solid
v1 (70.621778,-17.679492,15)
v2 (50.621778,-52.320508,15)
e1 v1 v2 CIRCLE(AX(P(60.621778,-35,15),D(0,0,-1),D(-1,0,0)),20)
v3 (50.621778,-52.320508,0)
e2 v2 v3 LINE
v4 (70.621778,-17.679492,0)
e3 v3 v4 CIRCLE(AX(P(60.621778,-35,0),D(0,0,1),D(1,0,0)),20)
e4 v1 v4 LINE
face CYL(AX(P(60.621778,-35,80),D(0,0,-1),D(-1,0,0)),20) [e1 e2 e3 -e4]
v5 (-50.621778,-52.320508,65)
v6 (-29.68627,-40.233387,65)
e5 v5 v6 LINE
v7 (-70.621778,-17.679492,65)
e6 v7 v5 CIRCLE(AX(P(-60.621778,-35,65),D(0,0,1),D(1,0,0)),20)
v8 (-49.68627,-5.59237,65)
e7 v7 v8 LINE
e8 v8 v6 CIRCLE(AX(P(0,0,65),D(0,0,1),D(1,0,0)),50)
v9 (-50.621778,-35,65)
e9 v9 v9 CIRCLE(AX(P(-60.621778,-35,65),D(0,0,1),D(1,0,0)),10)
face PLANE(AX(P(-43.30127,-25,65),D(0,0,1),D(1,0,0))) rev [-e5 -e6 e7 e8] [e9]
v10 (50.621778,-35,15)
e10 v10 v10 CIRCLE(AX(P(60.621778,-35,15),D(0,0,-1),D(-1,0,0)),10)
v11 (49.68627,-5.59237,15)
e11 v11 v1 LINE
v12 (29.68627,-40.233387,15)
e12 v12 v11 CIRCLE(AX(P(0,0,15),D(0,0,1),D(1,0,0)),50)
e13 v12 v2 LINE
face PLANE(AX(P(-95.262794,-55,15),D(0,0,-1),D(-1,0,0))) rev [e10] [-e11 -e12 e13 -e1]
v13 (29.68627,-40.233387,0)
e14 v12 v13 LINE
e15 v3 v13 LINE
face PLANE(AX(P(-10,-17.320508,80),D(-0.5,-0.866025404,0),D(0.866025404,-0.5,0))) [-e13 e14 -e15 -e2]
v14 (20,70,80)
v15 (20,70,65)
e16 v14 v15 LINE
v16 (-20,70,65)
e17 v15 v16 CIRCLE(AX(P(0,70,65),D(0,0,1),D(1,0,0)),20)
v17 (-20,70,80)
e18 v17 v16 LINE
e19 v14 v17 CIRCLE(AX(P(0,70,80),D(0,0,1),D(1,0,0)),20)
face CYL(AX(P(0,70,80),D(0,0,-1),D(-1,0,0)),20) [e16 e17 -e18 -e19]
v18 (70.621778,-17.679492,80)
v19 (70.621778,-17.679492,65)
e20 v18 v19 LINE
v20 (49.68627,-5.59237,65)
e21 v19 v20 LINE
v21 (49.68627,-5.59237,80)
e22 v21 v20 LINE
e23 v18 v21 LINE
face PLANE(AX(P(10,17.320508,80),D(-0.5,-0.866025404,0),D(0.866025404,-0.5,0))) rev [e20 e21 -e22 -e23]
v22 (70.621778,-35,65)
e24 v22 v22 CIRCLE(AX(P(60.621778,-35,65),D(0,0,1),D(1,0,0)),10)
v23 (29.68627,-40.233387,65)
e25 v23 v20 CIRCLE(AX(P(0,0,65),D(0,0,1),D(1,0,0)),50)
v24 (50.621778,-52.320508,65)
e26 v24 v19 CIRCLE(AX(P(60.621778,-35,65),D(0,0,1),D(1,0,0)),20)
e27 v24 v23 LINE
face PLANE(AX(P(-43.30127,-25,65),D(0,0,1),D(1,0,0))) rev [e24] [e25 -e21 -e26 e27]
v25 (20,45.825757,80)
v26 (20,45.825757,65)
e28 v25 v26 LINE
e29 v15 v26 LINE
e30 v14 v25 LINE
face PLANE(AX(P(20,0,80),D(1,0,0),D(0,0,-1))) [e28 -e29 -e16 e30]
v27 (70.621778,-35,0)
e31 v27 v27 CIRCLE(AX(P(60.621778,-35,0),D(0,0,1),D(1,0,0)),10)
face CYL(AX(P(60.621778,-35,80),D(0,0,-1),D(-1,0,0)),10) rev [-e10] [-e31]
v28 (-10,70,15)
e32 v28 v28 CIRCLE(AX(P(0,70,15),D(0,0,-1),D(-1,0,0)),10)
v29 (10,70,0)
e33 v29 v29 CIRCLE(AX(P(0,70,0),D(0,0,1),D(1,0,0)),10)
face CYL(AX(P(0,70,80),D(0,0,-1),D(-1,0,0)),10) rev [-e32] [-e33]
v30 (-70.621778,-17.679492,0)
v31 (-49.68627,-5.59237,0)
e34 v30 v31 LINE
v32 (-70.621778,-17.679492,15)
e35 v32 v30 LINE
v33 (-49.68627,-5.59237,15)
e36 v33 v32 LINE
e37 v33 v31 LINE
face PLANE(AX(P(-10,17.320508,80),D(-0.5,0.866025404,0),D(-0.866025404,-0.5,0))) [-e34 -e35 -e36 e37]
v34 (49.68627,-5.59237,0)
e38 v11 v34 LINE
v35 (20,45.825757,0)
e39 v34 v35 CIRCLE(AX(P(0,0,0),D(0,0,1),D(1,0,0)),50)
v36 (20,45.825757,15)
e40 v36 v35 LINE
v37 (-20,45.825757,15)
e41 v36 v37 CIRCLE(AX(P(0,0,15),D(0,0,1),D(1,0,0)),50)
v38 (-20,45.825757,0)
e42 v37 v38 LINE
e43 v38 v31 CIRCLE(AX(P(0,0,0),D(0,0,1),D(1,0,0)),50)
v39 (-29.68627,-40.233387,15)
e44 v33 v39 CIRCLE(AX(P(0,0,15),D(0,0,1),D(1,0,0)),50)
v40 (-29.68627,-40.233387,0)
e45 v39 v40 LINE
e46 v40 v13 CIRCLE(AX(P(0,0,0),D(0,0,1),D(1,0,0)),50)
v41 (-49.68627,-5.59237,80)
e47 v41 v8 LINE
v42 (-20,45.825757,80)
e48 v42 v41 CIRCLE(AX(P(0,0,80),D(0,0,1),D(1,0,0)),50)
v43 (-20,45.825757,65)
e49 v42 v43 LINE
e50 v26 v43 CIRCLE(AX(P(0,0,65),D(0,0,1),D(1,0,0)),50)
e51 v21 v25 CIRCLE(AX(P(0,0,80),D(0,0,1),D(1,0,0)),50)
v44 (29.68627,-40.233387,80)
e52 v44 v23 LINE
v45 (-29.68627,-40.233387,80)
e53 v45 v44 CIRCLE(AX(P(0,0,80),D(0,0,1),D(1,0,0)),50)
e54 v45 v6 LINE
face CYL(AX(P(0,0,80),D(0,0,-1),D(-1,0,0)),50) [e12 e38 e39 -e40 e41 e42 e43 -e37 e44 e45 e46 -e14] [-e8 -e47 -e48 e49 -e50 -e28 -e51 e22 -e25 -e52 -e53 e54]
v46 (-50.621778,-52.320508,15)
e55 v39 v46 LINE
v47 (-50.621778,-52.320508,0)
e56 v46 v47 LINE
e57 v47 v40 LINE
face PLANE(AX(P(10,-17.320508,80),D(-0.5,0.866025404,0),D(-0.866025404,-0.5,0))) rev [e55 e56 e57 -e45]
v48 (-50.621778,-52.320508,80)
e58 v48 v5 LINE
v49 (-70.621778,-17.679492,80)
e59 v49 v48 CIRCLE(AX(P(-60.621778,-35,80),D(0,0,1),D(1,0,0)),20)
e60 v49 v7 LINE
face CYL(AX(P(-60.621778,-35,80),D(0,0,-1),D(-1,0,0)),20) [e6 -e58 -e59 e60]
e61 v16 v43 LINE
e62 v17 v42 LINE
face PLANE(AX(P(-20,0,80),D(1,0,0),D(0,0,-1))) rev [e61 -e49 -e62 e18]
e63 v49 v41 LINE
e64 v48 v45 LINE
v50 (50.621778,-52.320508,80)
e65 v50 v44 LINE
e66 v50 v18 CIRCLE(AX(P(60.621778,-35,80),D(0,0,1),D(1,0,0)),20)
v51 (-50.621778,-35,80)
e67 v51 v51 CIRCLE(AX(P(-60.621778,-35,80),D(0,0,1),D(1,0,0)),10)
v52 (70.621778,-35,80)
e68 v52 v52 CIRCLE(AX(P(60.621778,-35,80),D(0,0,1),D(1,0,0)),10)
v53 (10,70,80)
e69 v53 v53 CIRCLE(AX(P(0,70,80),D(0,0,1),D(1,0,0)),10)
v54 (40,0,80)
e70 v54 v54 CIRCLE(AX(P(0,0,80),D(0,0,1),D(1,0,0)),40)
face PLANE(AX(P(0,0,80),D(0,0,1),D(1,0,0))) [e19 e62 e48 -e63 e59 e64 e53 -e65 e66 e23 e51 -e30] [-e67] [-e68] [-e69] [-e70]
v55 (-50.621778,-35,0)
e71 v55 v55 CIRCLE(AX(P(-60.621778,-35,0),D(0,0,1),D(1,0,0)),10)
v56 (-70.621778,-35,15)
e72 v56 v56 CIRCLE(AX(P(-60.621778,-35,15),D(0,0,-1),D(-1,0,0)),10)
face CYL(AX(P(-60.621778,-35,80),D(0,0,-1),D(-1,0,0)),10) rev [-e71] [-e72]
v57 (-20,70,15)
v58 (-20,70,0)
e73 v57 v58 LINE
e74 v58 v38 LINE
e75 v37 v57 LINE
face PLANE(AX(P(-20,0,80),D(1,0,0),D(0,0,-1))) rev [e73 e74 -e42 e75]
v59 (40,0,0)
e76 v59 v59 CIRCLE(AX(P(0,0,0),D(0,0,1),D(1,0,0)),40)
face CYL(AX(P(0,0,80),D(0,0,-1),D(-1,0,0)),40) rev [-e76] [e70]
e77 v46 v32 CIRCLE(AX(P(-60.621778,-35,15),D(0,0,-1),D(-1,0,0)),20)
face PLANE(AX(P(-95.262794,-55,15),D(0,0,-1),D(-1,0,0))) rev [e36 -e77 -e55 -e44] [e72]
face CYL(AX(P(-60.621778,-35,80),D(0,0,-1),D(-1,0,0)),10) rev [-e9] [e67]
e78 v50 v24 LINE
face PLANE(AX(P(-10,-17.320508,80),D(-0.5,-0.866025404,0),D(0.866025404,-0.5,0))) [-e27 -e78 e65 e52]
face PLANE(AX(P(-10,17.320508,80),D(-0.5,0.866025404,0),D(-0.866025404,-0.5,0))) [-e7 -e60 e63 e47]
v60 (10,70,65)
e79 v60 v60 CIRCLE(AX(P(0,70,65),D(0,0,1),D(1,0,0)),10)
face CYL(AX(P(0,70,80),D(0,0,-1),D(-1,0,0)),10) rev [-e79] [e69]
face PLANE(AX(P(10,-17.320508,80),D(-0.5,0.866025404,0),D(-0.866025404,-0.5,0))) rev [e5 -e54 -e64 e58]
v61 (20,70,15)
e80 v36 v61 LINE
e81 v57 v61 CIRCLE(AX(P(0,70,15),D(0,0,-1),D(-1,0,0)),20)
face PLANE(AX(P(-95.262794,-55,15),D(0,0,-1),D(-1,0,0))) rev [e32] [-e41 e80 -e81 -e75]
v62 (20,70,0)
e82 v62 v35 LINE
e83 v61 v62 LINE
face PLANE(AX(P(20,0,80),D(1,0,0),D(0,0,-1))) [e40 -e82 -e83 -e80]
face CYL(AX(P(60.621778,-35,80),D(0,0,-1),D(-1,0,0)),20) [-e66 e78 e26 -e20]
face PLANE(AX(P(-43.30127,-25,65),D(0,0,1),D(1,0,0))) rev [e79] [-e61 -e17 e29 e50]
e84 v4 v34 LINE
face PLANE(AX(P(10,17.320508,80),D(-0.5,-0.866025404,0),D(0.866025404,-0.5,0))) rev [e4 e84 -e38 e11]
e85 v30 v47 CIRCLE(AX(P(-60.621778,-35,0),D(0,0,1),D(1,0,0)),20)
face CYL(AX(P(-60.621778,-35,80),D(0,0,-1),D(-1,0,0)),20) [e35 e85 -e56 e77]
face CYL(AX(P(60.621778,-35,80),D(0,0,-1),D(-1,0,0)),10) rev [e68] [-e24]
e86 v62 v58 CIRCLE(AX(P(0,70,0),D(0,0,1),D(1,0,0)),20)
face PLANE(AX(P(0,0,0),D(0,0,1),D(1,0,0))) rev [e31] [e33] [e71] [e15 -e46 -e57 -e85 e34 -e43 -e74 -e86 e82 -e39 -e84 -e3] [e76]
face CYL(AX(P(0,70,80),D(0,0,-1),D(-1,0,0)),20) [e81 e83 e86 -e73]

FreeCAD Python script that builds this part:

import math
import FreeCAD as App
import Part
import Sketcher

V = App.Vector
Q = App.Units.Quantity


def add_polygon(sketch, points):
    """Adds a closed chain of lines whose ends are joined by coincident constraints."""
    first, n = sketch.GeometryCount, len(points)
    for a, b in zip(points, points[1:] + points[:1]):
        sketch.addGeometry(Part.LineSegment(App.Vector(*a, 0), App.Vector(*b, 0)), False)
    for i in range(n):
        sketch.addConstraint(Sketcher.Constraint("Coincident", first + i, 2, first + (i + 1) % n, 1))

doc = App.newDocument("Part")
body = doc.addObject("PartDesign::Body", "Body")

# Sketch on XY plane
sketch1 = body.newObject("Sketcher::SketchObject", "Sketch")
sketch1.AttachmentSupport = (doc.getObject("XY_Plane"), [""])
sketch1.MapMode = "FlatFace"
sketch1.addGeometry(Part.LineSegment(V(20, 45.825757, 0), V(20, 70, 0)), False)
sketch1.addGeometry(Part.ArcOfCircle(Part.Circle(V(0, 70, 0), V(0, 0, 1), 20), math.radians(0), math.radians(180)), False)
sketch1.addGeometry(Part.LineSegment(V(-20, 70, 0), V(-20, 45.825757, 0)), False)
sketch1.addGeometry(Part.ArcOfCircle(Part.Circle(V(0, 0, 0), V(0, 0, 1), 50), math.radians(113.578178), math.radians(186.421822)), False)
sketch1.addGeometry(Part.LineSegment(V(-49.68627, -5.59237, 0), V(-70.621778, -17.679492, 0)), False)
sketch1.addGeometry(Part.ArcOfCircle(Part.Circle(V(-60.621778, -35, 0), V(0, 0, 1), 20), math.radians(120), math.radians(300)), False)
sketch1.addGeometry(Part.LineSegment(V(-50.621778, -52.320508, 0), V(-29.68627, -40.233387, 0)), False)
sketch1.addGeometry(Part.ArcOfCircle(Part.Circle(V(0, 0, 0), V(0, 0, 1), 50), math.radians(-126.421822), math.radians(-53.578178)), False)
sketch1.addGeometry(Part.LineSegment(V(29.68627, -40.233387, 0), V(50.621778, -52.320508, 0)), False)
sketch1.addGeometry(Part.ArcOfCircle(Part.Circle(V(60.621778, -35, 0), V(0, 0, 1), 20), math.radians(-120), math.radians(60)), False)
sketch1.addGeometry(Part.LineSegment(V(70.621778, -17.679492, 0), V(49.68627, -5.59237, 0)), False)
sketch1.addGeometry(Part.ArcOfCircle(Part.Circle(V(0, 0, 0), V(0, 0, 1), 50), math.radians(-6.421822), math.radians(66.421822)), False)
sketch1.addGeometry(Part.Circle(V(0, 0, 0), V(0, 0, 1), 40), False)
sketch1.addGeometry(Part.Circle(V(0, 70, 0), V(0, 0, 1), 10), False)
sketch1.addGeometry(Part.Circle(V(-60.621778, -35, 0), V(0, 0, 1), 10), False)
sketch1.addGeometry(Part.Circle(V(60.621778, -35, 0), V(0, 0, 1), 10), False)
sketch1.addConstraint(Sketcher.Constraint("Tangent", 0, 2, 1, 1))
sketch1.addConstraint(Sketcher.Constraint("Tangent", 1, 2, 2, 1))
sketch1.addConstraint(Sketcher.Constraint("Coincident", 2, 2, 3, 1))
sketch1.addConstraint(Sketcher.Constraint("Coincident", 3, 2, 4, 1))
sketch1.addConstraint(Sketcher.Constraint("Tangent", 4, 2, 5, 1))
sketch1.addConstraint(Sketcher.Constraint("Tangent", 5, 2, 6, 1))
sketch1.addConstraint(Sketcher.Constraint("Coincident", 6, 2, 7, 1))
sketch1.addConstraint(Sketcher.Constraint("Coincident", 7, 2, 8, 1))
sketch1.addConstraint(Sketcher.Constraint("Tangent", 8, 2, 9, 1))
sketch1.addConstraint(Sketcher.Constraint("Tangent", 9, 2, 10, 1))
sketch1.addConstraint(Sketcher.Constraint("Coincident", 10, 2, 11, 1))
sketch1.addConstraint(Sketcher.Constraint("Coincident", 11, 2, 0, 1))
sketch1.addConstraint(Sketcher.Constraint("Vertical", 0))
sketch1.addConstraint(Sketcher.Constraint("Vertical", 2))
sketch1.addConstraint(Sketcher.Constraint("Coincident", 3, 3, -1, 1))
sketch1.addConstraint(Sketcher.Constraint("Coincident", 7, 3, -1, 1))
sketch1.addConstraint(Sketcher.Constraint("Coincident", 11, 3, -1, 1))
sketch1.addConstraint(Sketcher.Constraint("Coincident", 12, 3, -1, 1))
sketch1.addConstraint(Sketcher.Constraint("Coincident", 13, 3, 1, 3))
sketch1.addConstraint(Sketcher.Constraint("Coincident", 14, 3, 5, 3))
sketch1.addConstraint(Sketcher.Constraint("Coincident", 15, 3, 9, 3))
sketch1.addConstraint(Sketcher.Constraint("Equal", 1, 5))
sketch1.addConstraint(Sketcher.Constraint("Equal", 3, 7))
sketch1.addConstraint(Sketcher.Constraint("Equal", 5, 9))
sketch1.addConstraint(Sketcher.Constraint("Equal", 7, 11))
sketch1.addConstraint(Sketcher.Constraint("Equal", 13, 14))
sketch1.addConstraint(Sketcher.Constraint("Equal", 14, 15))
sketch1.addConstraint(Sketcher.Constraint("Symmetric", 5, 3, 9, 3, -2))
sketch1.addConstraint(Sketcher.Constraint("PointOnObject", 1, 3, -2))
sketch1.addConstraint(Sketcher.Constraint("Parallel", 4, 6))
sketch1.addConstraint(Sketcher.Constraint("Parallel", 8, 10))
sketch1.addConstraint(Sketcher.Constraint("Horizontal", 6, 2, 7, 2))
sketch1.addConstraint(Sketcher.Constraint("Equal", 4, 6))
sketch1.addConstraint(Sketcher.Constraint("Diameter", 12, Q("80 mm")))
sketch1.addConstraint(Sketcher.Constraint("Diameter", 13, Q("20 mm")))
sketch1.addConstraint(Sketcher.Constraint("Radius", 1, Q("20 mm")))
sketch1.addConstraint(Sketcher.Constraint("Radius", 3, Q("50 mm")))
sketch1.addConstraint(Sketcher.Constraint("Angle", 4, Q("-150 deg")))
sketch1.addConstraint(Sketcher.Constraint("DistanceY", -1, 1, 1, 3, Q("70 mm")))
sketch1.addConstraint(Sketcher.Constraint("DistanceY", 5, 3, -1, 1, Q("35 mm")))
pad1 = body.newObject("PartDesign::Pad", "Pad")
pad1.Profile = sketch1
pad1.Length = 80

# Sketch on an angled plane
sketch2 = body.newObject("Sketcher::SketchObject", "Sketch001")
sketch2.Placement = App.Placement(V(0, 0, 0), App.Rotation(V(-0.866025404, -0.5, 0), V(0, 0, -1), V(0.5, -0.866025404, 0), "ZXY"))
add_polygon(sketch2, [(50, -15), (50, -65), (110, -65), (110, -15)])  # lines 0-3
sketch2.addConstraint(Sketcher.Constraint("Vertical", 0))
sketch2.addConstraint(Sketcher.Constraint("Horizontal", 1))
sketch2.addConstraint(Sketcher.Constraint("Vertical", 2))
sketch2.addConstraint(Sketcher.Constraint("Horizontal", 3))
sketch2.addConstraint(Sketcher.Constraint("DistanceX", 1, 1, 1, 2, Q("60 mm")))
sketch2.addConstraint(Sketcher.Constraint("DistanceY", 0, 2, 0, 1, Q("50 mm")))
sketch2.addConstraint(Sketcher.Constraint("DistanceX", -1, 1, 0, 2, Q("50 mm")))
sketch2.addConstraint(Sketcher.Constraint("DistanceY", 0, 2, -1, 1, Q("65 mm")))
groove = body.newObject("PartDesign::Groove", "Groove")
groove.Profile = sketch2
groove.ReferenceAxis = (sketch2, ["V_Axis"])
groove.Angle = 360

doc.recompute()
